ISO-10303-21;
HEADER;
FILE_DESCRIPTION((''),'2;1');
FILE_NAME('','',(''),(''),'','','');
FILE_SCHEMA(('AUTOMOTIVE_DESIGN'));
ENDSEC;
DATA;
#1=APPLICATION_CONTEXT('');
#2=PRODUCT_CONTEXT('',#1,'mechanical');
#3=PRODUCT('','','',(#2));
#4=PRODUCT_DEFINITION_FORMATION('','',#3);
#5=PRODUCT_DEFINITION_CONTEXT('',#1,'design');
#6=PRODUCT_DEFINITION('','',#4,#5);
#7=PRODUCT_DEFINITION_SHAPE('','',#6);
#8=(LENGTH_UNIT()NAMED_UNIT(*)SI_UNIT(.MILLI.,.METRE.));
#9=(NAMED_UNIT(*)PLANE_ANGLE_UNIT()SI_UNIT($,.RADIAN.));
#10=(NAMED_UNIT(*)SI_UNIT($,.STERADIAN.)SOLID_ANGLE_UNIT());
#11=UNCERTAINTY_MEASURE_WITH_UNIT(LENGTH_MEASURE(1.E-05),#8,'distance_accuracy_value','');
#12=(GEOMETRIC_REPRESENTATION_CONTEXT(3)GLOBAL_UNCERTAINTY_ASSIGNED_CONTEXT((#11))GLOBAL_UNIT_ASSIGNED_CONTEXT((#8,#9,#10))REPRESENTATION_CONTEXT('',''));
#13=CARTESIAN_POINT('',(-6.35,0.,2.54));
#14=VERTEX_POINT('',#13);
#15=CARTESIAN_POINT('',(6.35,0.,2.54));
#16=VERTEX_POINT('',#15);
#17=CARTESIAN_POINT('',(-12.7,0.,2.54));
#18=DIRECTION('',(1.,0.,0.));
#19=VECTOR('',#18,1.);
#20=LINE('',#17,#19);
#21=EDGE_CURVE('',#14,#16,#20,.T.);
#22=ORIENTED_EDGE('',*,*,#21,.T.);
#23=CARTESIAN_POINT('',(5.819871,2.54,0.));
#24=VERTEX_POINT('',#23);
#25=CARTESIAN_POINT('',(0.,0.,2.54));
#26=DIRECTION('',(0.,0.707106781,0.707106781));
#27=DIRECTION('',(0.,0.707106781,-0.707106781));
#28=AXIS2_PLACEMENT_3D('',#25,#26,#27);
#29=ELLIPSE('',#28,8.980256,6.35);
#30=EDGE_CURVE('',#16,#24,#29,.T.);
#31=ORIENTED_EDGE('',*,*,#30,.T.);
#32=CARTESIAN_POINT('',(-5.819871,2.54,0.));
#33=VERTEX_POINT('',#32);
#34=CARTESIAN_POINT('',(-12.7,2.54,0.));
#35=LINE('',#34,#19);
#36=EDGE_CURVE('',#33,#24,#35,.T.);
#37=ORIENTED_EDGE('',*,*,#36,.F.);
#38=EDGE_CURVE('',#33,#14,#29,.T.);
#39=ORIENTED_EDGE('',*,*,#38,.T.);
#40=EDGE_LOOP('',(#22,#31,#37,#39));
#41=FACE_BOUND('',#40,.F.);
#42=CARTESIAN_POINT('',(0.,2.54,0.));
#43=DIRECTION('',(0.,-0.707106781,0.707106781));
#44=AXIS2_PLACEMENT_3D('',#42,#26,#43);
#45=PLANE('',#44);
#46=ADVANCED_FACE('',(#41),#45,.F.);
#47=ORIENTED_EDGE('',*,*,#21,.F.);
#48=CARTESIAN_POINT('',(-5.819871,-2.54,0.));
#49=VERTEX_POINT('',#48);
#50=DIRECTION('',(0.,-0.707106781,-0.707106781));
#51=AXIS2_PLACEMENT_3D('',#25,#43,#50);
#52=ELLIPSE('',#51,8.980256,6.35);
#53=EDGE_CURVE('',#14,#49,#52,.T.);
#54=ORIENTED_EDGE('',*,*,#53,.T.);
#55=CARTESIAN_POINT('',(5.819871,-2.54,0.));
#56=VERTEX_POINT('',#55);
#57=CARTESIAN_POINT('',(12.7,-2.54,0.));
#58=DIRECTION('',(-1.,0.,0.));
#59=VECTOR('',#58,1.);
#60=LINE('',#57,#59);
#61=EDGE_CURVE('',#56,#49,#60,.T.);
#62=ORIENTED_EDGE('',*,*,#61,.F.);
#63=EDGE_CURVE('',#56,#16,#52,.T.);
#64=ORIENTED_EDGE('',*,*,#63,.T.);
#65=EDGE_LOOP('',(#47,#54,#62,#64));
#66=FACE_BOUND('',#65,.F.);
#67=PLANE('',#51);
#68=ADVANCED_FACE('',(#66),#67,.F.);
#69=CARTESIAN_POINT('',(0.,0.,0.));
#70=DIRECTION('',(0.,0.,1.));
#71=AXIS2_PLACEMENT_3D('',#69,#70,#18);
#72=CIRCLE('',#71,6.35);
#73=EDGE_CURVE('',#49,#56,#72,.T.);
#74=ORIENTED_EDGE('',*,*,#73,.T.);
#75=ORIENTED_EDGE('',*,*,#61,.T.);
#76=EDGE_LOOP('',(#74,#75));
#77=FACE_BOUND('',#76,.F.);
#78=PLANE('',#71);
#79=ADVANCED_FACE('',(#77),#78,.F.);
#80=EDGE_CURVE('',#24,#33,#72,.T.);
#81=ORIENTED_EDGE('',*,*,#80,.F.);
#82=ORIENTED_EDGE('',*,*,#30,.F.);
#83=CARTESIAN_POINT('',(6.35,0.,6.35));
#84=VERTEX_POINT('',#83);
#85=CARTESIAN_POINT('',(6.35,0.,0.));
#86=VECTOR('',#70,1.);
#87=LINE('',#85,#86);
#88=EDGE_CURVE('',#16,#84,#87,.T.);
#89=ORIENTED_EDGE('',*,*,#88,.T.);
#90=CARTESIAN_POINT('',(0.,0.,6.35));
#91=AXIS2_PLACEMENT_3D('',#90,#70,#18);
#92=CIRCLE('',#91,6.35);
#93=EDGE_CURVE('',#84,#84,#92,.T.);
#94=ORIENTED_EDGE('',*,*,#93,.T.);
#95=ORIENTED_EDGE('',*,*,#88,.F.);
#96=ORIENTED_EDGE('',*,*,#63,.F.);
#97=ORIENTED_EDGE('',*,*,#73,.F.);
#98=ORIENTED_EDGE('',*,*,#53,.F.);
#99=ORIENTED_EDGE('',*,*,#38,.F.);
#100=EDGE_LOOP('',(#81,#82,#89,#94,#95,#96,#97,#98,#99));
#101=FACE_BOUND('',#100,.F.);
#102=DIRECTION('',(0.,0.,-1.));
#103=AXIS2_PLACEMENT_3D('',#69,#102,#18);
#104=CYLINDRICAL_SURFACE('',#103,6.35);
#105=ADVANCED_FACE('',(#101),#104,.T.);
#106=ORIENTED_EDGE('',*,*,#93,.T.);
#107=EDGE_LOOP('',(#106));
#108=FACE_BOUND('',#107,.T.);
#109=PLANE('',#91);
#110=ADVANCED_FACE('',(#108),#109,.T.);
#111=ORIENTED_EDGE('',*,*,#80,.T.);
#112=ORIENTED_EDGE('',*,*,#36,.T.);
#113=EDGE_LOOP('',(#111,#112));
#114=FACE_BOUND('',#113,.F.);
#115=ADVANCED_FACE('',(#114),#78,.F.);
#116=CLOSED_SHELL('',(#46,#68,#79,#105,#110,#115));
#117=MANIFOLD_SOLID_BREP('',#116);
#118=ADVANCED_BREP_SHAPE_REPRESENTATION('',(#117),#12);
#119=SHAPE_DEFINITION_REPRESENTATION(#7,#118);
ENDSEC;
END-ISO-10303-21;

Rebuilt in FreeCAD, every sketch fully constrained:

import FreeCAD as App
import Part
import Sketcher
from FreeCAD import Vector
Q = App.Units.Quantity


def add_polygon(sketch, points):
    """Adds a closed chain of lines whose ends are joined by coincident constraints."""
    first, n = sketch.GeometryCount, len(points)
    for a, b in zip(points, points[1:] + points[:1]):
        sketch.addGeometry(Part.LineSegment(App.Vector(*a, 0), App.Vector(*b, 0)), False)
    for i in range(n):
        sketch.addConstraint(Sketcher.Constraint("Coincident", first + i, 2, first + (i + 1) % n, 1))

doc = App.newDocument("Part")
body = doc.addObject("PartDesign::Body", "Body")

sketch1 = doc.addObject("Sketcher::SketchObject", "Sketch")
body.addObject(sketch1)
sketch1.AttachmentSupport = (doc.XY_Plane, [""])
sketch1.MapMode = "FlatFace"
sketch1.addGeometry(Part.Circle(Vector(0, 0, 0), Vector(0, 0, 1), 6), False)
sketch1.addConstraint(Sketcher.Constraint("Coincident", 0, 3, -1, 1))
sketch1.addConstraint(Sketcher.Constraint("Diameter", 0, Q("0.5 in")))
pad1 = doc.addObject("PartDesign::Pad", "Pad")
body.addObject(pad1)
pad1.Profile = sketch1
pad1.Length = Q("0.25 in")

sketch2 = doc.addObject("Sketcher::SketchObject", "Sketch001")
body.addObject(sketch2)
sketch2.AttachmentSupport = (doc.YZ_Plane, [""])
sketch2.MapMode = "FlatFace"
add_polygon(sketch2, [(0, -2.5), (2.5, 0), (0, 2.5), (-2.5, 0)])
sketch2.addConstraint(Sketcher.Constraint("Symmetric", 0, 2, 2, 2, -1, 1))
sketch2.addConstraint(Sketcher.Constraint("Symmetric", 1, 2, 3, 2, -1, 1))
sketch2.addConstraint(Sketcher.Constraint("PointOnObject", 0, 2, -1))
sketch2.addConstraint(Sketcher.Constraint("PointOnObject", 1, 2, -2))
sketch2.addConstraint(Sketcher.Constraint("Perpendicular", 0, 1))
sketch2.addConstraint(Sketcher.Constraint("DistanceX", -1, 1, 0, 2, Q("0.1 in")))
pocket1 = doc.addObject("PartDesign::Pocket", "Pocket")
body.addObject(pocket1)
pocket1.Profile = sketch2
pocket1.Length = Q("1 in")
pocket1.Midplane = True

doc.recompute()
